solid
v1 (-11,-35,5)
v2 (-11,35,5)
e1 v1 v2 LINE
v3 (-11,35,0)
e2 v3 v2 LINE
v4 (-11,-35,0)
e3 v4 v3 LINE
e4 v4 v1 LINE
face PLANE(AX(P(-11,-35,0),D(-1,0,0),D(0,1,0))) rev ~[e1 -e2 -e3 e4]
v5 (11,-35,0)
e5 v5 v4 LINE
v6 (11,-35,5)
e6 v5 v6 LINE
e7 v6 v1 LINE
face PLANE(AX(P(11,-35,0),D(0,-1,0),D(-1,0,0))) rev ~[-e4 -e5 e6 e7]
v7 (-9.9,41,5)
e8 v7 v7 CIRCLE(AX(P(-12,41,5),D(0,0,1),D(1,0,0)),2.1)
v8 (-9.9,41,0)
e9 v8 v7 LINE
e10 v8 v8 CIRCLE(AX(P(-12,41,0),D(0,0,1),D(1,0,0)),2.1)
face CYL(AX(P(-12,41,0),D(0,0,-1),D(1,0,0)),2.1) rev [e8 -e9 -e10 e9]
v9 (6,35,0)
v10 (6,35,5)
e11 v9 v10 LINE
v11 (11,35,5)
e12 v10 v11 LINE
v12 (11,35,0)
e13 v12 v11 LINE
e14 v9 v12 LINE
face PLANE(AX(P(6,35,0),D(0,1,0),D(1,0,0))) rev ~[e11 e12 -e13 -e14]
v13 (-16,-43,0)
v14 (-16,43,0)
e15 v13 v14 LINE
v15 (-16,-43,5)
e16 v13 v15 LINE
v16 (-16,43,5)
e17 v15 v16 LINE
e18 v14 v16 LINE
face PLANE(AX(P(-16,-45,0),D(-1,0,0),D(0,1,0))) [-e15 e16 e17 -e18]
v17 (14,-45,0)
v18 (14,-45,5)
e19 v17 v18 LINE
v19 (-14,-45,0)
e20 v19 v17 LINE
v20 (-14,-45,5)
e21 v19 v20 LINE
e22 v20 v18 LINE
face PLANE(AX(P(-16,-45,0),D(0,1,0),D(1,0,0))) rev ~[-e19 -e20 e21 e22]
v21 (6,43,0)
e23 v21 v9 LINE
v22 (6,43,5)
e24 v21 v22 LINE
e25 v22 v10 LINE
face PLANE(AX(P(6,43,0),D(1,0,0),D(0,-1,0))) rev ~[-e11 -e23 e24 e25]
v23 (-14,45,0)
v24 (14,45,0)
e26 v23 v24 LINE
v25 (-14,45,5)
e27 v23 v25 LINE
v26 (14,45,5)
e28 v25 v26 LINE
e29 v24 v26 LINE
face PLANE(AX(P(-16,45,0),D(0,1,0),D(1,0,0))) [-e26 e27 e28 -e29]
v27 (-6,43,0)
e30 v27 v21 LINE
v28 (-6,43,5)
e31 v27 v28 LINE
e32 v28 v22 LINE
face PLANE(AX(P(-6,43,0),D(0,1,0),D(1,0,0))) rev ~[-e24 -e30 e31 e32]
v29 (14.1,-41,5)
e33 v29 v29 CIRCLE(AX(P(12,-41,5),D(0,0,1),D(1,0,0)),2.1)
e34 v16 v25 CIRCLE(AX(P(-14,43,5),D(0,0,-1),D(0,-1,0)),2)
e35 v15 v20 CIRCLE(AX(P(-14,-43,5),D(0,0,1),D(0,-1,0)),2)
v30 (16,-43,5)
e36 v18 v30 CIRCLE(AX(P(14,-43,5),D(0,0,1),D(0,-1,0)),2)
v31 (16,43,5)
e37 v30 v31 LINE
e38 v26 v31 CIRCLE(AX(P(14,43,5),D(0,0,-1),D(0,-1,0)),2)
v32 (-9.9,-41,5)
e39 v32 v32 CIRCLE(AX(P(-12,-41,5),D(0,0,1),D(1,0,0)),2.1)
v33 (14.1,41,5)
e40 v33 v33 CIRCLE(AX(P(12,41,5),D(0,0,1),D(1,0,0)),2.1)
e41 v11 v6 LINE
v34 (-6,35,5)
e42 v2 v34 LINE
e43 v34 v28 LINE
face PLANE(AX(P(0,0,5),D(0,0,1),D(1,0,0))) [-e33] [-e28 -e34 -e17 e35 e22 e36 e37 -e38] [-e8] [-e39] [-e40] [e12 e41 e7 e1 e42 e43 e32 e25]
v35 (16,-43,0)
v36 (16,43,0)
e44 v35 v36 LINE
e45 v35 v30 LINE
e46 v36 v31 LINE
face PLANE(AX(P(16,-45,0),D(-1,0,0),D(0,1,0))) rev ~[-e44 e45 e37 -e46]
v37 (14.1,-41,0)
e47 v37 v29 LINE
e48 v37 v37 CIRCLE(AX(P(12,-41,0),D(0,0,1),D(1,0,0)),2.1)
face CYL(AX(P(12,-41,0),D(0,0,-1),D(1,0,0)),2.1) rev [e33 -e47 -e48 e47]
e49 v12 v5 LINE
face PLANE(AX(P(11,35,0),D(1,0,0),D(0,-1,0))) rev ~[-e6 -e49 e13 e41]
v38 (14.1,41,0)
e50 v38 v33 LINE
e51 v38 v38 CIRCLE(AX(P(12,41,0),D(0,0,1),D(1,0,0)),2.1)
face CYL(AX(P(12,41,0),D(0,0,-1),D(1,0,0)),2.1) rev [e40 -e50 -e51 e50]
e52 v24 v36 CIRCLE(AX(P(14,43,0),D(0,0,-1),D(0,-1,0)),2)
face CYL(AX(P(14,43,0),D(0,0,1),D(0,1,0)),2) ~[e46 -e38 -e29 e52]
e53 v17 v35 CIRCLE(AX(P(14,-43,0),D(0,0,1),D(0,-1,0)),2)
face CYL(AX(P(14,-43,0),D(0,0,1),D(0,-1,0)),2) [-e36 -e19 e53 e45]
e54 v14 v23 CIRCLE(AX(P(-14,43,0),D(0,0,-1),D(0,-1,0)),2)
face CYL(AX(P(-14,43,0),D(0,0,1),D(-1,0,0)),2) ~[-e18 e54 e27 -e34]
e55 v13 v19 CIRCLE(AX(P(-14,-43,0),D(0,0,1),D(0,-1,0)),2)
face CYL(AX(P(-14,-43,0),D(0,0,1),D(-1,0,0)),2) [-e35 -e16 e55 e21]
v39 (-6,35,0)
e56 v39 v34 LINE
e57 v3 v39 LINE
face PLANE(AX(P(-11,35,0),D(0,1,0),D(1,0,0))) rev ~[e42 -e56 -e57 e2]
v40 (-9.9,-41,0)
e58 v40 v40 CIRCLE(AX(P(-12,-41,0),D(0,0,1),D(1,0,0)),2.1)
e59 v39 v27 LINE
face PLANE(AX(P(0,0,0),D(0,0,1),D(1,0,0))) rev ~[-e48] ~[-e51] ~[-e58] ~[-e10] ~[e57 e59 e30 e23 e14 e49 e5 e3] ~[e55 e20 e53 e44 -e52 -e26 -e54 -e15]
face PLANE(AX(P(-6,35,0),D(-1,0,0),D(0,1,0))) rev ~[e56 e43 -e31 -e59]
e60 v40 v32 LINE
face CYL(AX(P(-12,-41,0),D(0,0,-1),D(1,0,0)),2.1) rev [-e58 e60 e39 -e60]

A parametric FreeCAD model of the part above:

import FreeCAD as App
import Part
import Sketcher
from FreeCAD import Vector


def edges_at(feature, points):
    """Names of the edges that pass closest to the given points."""
    edges = feature.Shape.Edges
    near = lambda p: min(range(len(edges)), key=lambda i: edges[i].distToShape(Part.Vertex(*p))[0])
    return sorted({f"Edge{near(p) + 1}" for p in points})

doc = App.newDocument("Part")
body = doc.addObject("PartDesign::Body", "Body")

# Sketch on XY plane
sketch1 = body.newObject("Sketcher::SketchObject", "Sketch")
sketch1.AttachmentSupport = (doc.getObject("XY_Plane"), [""])
sketch1.MapMode = "FlatFace"
sketch1.addGeometry([
    Part.LineSegment(Vector(-16, 45, 0), Vector(-16, -45, 0)),  # 0
    Part.LineSegment(Vector(-16, -45, 0), Vector(16, -45, 0)),  # 1
    Part.LineSegment(Vector(16, -45, 0), Vector(16, 45, 0)),  # 2
    Part.LineSegment(Vector(16, 45, 0), Vector(-16, 45, 0)),  # 3
    Part.Circle(Vector(-12, -41, 0), Vector(0, 0, 1), 2.1),  # 4
    Part.Circle(Vector(12, -41, 0), Vector(0, 0, 1), 2.1),  # 5
    Part.Circle(Vector(-12, 41, 0), Vector(0, 0, 1), 2.1),  # 6
    Part.LineSegment(Vector(6, 35, 0), Vector(11, 35, 0)),  # 7
    Part.LineSegment(Vector(11, 35, 0), Vector(11, -35, 0)),  # 8
    Part.LineSegment(Vector(11, -35, 0), Vector(-11, -35, 0)),  # 9
    Part.LineSegment(Vector(-11, -35, 0), Vector(-11, 35, 0)),  # 10
    Part.LineSegment(Vector(-11, 35, 0), Vector(-6, 35, 0)),  # 11
    Part.LineSegment(Vector(-6, 35, 0), Vector(-6, 43, 0)),  # 12
    Part.LineSegment(Vector(-6, 43, 0), Vector(6, 43, 0)),  # 13
    Part.LineSegment(Vector(6, 43, 0), Vector(6, 35, 0)),  # 14
    Part.Circle(Vector(12, 41, 0), Vector(0, 0, 1), 2.1),  # 15
], False)
sketch1.addConstraint([
    Sketcher.Constraint("Coincident", 0, 2, 1, 1),
    Sketcher.Constraint("Coincident", 1, 2, 2, 1),
    Sketcher.Constraint("Coincident", 2, 2, 3, 1),
    Sketcher.Constraint("Coincident", 3, 2, 0, 1),
    Sketcher.Constraint("Coincident", 7, 2, 8, 1),
    Sketcher.Constraint("Coincident", 8, 2, 9, 1),
    Sketcher.Constraint("Coincident", 9, 2, 10, 1),
    Sketcher.Constraint("Coincident", 10, 2, 11, 1),
    Sketcher.Constraint("Coincident", 11, 2, 12, 1),
    Sketcher.Constraint("Coincident", 12, 2, 13, 1),
    Sketcher.Constraint("Coincident", 13, 2, 14, 1),
    Sketcher.Constraint("Coincident", 14, 2, 7, 1),
    Sketcher.Constraint("Vertical", 0),
    Sketcher.Constraint("Horizontal", 1),
    Sketcher.Constraint("Vertical", 2),
    Sketcher.Constraint("Horizontal", 3),
    Sketcher.Constraint("Horizontal", 7),
    Sketcher.Constraint("Vertical", 8),
    Sketcher.Constraint("Horizontal", 9),
    Sketcher.Constraint("Vertical", 10),
    Sketcher.Constraint("Horizontal", 11),
    Sketcher.Constraint("Vertical", 12),
    Sketcher.Constraint("Horizontal", 13),
    Sketcher.Constraint("Vertical", 14),
    Sketcher.Constraint("Equal", 4, 5),
    Sketcher.Constraint("Equal", 5, 6),
    Sketcher.Constraint("Equal", 6, 15),
    Sketcher.Constraint("Symmetric", 5, 3, 6, 3, -1, 1),
    Sketcher.Constraint("Symmetric", 4, 3, 15, 3, -1, 1),
    Sketcher.Constraint("Symmetric", 0, 2, 2, 2, -1, 1),
    Sketcher.Constraint("Symmetric", 7, 2, 9, 2, -1, 1),
    Sketcher.Constraint("Symmetric", 4, 3, 5, 3, -2),
    Sketcher.Constraint("Symmetric", 11, 2, 14, 2, -2),
    Sketcher.Constraint("Diameter", 4, 4.2),
    Sketcher.Constraint("DistanceX", 1, 1, 1, 2, 32.0),
    Sketcher.Constraint("DistanceX", 7, 1, 7, 2, 5.0),
    Sketcher.Constraint("DistanceX", 9, 2, 9, 1, 22.0),
    Sketcher.Constraint("DistanceY", 0, 2, 0, 1, 90.0),
    Sketcher.Constraint("DistanceY", 8, 2, 8, 1, 70.0),
    Sketcher.Constraint("DistanceY", 12, 1, 12, 2, 8.0),
    Sketcher.Constraint("DistanceX", 4, 3, -1, 1, 12.0),
    Sketcher.Constraint("DistanceY", 4, 3, -1, 1, 41.0),
])
pad1 = body.newObject("PartDesign::Pad", "Pad")
pad1.Profile = sketch1
pad1.Length = 5
doc.recompute()

fillet = body.newObject("PartDesign::Fillet", "Fillet")
fillet.Base = (pad1, edges_at(pad1, [
    (-16, 45, 2.5),
    (16, 45, 2.5),
    (16, -45, 2.5),
    (-16, -45, 2.5),
]))
fillet.Radius = 2

doc.recompute()
